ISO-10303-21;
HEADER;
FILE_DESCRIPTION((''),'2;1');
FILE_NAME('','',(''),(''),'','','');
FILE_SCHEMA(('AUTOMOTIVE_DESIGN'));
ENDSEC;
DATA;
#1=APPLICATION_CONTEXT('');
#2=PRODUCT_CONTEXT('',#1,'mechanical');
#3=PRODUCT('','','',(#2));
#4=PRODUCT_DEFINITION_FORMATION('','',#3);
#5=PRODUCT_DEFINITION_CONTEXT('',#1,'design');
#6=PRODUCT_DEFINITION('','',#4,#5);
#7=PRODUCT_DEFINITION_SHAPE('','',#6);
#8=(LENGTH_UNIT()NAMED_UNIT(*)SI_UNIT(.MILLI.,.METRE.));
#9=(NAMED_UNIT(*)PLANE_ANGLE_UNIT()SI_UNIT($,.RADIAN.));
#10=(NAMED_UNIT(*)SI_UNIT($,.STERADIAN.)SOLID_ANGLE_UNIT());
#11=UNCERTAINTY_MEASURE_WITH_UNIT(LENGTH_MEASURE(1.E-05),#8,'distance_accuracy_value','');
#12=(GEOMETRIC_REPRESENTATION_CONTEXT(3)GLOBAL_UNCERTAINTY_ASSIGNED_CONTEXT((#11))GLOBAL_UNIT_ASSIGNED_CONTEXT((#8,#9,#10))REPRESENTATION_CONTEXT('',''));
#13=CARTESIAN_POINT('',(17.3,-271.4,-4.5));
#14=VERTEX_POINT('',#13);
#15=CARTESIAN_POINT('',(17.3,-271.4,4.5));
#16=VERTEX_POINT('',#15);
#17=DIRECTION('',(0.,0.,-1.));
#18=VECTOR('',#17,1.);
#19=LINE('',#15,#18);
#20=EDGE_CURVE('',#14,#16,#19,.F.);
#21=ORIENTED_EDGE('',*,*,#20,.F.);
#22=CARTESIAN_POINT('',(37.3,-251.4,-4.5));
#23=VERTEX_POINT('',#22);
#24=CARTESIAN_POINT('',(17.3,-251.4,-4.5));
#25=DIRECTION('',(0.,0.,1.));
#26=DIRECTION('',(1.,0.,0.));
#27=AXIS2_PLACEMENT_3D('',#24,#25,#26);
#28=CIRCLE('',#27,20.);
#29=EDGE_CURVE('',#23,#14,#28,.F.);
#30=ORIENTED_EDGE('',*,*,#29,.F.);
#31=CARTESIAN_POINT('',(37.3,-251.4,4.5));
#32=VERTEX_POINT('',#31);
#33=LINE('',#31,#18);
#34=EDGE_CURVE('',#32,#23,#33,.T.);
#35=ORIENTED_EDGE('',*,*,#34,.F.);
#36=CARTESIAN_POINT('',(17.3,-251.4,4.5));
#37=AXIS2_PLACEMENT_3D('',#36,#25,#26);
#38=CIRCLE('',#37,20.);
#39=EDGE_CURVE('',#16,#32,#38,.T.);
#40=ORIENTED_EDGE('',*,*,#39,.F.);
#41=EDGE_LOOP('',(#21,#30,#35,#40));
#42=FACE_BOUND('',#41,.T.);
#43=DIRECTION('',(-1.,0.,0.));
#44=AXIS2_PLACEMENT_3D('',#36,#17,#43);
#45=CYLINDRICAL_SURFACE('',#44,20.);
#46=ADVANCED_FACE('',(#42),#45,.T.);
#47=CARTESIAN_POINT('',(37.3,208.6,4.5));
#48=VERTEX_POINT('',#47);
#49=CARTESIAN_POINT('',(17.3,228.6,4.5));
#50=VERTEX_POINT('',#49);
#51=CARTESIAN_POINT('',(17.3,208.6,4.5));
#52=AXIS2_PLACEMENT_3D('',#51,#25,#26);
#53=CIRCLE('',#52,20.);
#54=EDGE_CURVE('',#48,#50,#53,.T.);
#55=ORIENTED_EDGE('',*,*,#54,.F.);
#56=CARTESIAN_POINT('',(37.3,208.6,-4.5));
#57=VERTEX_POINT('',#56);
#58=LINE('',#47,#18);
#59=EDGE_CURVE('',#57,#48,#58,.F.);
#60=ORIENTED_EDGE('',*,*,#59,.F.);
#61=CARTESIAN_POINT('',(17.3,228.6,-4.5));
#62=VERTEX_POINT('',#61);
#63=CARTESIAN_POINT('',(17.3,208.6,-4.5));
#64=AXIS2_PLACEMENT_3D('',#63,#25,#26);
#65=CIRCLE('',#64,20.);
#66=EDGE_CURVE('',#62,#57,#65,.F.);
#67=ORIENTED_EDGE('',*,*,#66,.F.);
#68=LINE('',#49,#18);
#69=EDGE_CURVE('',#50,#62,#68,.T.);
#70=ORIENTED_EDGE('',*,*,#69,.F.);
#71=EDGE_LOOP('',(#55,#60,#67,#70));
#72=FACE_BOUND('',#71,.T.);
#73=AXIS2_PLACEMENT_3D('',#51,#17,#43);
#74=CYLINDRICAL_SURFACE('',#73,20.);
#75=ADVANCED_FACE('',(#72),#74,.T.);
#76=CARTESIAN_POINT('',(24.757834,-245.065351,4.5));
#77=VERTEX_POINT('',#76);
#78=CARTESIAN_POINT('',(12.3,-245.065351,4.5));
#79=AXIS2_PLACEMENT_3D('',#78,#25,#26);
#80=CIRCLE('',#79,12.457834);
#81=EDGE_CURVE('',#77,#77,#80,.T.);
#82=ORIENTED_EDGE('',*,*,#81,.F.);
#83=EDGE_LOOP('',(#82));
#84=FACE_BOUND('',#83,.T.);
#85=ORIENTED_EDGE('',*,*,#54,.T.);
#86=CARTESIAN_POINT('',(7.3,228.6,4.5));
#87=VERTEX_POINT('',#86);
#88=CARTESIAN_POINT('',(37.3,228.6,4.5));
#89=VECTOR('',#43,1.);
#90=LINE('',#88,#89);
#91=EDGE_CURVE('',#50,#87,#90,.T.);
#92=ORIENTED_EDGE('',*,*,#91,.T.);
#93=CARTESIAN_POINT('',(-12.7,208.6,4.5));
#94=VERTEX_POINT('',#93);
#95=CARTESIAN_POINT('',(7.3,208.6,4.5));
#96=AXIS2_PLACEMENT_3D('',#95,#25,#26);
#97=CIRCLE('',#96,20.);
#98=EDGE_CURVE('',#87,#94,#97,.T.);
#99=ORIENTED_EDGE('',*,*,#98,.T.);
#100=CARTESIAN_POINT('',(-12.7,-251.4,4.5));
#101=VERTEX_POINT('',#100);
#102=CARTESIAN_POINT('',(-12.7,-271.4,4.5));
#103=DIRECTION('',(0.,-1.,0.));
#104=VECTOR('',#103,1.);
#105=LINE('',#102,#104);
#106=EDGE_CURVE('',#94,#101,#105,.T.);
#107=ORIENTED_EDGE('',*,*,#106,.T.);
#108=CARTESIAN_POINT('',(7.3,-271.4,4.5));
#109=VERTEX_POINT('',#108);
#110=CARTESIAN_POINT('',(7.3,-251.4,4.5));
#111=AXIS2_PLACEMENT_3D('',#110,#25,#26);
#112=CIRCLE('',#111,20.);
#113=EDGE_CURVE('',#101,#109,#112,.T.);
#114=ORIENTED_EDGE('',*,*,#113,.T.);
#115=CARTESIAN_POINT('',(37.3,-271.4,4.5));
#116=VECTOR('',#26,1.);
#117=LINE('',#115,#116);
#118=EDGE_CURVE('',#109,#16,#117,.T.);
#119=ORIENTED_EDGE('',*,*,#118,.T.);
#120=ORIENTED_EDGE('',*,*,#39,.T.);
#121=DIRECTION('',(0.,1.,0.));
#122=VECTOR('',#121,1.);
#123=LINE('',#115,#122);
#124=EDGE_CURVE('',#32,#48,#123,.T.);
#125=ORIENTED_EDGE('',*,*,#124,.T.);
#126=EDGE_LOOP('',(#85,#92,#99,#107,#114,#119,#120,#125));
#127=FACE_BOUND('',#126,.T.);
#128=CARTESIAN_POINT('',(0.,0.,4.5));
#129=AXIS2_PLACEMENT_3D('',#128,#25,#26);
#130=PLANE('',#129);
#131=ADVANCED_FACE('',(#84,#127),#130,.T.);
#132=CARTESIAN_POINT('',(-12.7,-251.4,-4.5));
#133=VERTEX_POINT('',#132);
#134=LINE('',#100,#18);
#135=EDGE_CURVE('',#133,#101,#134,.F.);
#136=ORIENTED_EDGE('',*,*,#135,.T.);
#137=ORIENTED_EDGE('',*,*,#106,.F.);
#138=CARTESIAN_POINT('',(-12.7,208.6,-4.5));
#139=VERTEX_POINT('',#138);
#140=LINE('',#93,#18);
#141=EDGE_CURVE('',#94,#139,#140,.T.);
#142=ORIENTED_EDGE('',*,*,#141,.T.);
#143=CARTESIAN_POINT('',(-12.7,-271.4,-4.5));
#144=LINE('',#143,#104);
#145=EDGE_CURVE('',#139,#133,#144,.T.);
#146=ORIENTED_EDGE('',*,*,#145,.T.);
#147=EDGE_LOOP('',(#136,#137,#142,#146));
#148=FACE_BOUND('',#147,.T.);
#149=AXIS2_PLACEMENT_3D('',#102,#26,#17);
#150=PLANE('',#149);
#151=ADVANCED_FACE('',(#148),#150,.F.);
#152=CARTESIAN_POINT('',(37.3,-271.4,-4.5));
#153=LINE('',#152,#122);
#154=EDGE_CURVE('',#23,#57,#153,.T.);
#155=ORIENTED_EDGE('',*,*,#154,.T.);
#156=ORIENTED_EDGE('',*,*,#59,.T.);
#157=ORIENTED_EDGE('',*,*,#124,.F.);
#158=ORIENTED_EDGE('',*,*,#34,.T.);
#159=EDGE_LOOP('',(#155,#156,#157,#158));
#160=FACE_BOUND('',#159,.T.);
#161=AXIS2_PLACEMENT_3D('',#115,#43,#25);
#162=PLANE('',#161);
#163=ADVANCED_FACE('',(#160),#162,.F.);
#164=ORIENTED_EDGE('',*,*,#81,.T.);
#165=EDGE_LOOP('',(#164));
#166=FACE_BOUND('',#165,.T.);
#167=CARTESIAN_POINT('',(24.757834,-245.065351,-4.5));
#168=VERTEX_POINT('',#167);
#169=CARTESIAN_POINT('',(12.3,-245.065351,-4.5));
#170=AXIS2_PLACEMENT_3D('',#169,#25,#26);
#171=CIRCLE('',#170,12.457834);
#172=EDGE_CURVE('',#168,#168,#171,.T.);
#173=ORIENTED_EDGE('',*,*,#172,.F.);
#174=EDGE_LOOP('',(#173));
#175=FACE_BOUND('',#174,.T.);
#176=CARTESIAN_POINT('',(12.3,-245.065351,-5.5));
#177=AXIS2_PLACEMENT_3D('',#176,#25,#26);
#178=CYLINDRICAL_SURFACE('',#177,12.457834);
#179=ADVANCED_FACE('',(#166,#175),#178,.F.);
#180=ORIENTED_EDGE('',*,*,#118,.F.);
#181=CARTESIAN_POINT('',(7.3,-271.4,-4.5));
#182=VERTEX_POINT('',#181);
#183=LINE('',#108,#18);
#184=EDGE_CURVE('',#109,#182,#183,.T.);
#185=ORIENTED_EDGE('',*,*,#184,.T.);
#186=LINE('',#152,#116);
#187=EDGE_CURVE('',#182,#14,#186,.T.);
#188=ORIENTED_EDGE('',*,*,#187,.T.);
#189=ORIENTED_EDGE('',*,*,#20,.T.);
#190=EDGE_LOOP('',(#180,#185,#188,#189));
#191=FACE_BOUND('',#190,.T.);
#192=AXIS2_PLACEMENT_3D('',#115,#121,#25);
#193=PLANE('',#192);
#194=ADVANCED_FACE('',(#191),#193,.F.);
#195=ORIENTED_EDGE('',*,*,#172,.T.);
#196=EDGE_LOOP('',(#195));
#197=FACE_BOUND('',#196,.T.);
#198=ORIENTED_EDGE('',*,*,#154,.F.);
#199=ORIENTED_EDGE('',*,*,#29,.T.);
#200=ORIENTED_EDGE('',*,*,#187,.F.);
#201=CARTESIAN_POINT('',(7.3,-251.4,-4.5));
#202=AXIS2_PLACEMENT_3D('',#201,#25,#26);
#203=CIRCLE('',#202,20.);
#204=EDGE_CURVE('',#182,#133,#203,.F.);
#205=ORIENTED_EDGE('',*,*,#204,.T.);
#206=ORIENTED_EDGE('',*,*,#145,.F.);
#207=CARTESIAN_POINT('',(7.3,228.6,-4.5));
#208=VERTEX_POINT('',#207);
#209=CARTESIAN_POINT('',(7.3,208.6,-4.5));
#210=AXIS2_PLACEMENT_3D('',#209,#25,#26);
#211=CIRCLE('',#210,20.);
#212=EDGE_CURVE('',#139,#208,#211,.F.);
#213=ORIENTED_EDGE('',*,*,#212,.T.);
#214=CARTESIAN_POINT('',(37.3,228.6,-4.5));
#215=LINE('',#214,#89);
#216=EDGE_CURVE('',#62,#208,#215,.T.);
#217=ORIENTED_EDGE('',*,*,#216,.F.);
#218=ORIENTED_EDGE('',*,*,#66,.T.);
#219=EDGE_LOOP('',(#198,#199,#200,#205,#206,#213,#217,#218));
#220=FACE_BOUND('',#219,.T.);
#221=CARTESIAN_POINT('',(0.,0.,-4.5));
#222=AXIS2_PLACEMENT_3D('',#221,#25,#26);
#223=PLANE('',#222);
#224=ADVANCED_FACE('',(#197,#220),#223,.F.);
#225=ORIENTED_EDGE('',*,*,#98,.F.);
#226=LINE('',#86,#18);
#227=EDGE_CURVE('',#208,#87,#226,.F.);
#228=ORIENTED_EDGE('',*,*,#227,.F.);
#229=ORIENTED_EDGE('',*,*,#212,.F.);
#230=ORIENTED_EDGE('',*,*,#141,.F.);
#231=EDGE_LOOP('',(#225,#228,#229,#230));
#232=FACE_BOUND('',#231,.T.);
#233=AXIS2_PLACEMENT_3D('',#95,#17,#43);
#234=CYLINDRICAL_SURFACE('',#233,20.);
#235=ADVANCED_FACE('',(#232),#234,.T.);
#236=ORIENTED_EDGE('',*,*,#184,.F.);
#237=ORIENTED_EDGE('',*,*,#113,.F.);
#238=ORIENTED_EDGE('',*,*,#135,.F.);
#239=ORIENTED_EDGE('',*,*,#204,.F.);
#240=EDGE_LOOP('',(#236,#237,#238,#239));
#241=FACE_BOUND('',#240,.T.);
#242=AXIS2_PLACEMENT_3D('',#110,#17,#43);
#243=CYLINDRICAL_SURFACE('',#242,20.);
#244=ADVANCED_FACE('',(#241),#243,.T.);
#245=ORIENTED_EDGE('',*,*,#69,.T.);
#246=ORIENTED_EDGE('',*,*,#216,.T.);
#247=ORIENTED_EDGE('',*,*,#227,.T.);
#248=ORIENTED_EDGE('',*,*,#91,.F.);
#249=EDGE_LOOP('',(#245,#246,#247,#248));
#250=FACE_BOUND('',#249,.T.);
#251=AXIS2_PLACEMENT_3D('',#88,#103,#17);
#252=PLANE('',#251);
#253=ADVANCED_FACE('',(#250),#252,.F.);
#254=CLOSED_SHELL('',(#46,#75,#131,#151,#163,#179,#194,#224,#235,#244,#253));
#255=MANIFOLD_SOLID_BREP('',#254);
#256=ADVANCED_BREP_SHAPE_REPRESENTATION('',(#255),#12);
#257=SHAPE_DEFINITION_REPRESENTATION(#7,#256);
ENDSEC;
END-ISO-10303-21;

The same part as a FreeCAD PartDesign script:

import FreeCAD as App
import Part
import Sketcher

V = App.Vector
Q = App.Units.Quantity


def edges_at(feature, points):
    """Names of the edges that pass closest to the given points."""
    edges = feature.Shape.Edges
    near = lambda p: min(range(len(edges)), key=lambda i: edges[i].distToShape(Part.Vertex(*p))[0])
    return sorted({f"Edge{near(p) + 1}" for p in points})

doc = App.newDocument("Part")
params = doc.addObject("Spreadsheet::Sheet", "Params")
for row, (alias, value) in enumerate([
    ("sketch1_width", "50 mm"),
    ("sketch1_height", "500 mm"),
    ("pad1_length", "9 mm"),
    ("fillet_radius", "20 mm"),
    ("pocket1_length", "10 mm"),
], start=1):
    params.set(f"A{row}", alias)
    params.set(f"B{row}", "=" + value)
    params.setAlias(f"B{row}", alias)

body = doc.addObject("PartDesign::Body", "Body")

# Sketch on XY plane
sketch1 = body.newObject("Sketcher::SketchObject", "Sketch")
sketch1.AttachmentSupport = (doc.getObject("XY_Plane"), [""])
sketch1.MapMode = "FlatFace"
sketch1.addGeometry(Part.LineSegment(V(-13, 229, 0), V(-13, -271, 0)), False)
sketch1.addGeometry(Part.LineSegment(V(-13, -271, 0), V(37, -271, 0)), False)
sketch1.addGeometry(Part.LineSegment(V(37, -271, 0), V(37, 229, 0)), False)
sketch1.addGeometry(Part.LineSegment(V(37, 229, 0), V(-13, 229, 0)), False)
sketch1.addConstraint(Sketcher.Constraint("Coincident", 0, 2, 1, 1))
sketch1.addConstraint(Sketcher.Constraint("Coincident", 1, 2, 2, 1))
sketch1.addConstraint(Sketcher.Constraint("Coincident", 2, 2, 3, 1))
sketch1.addConstraint(Sketcher.Constraint("Coincident", 3, 2, 0, 1))
sketch1.addConstraint(Sketcher.Constraint("Vertical", 0))
sketch1.addConstraint(Sketcher.Constraint("Horizontal", 1))
sketch1.addConstraint(Sketcher.Constraint("Vertical", 2))
sketch1.addConstraint(Sketcher.Constraint("Horizontal", 3))
sketch1.addConstraint(Sketcher.Constraint("DistanceX", 1, 1, 1, 2, Q("50 mm")))
sketch1.addConstraint(Sketcher.Constraint("DistanceY", 0, 2, 0, 1, Q("500 mm")))
sketch1.addConstraint(Sketcher.Constraint("DistanceX", 0, 2, -1, 1, Q("12.7 mm")))
sketch1.addConstraint(Sketcher.Constraint("DistanceY", 0, 2, -1, 1, Q("271.4 mm")))
sketch1.setExpression("Constraints[8]", "Params.sketch1_width")
sketch1.setExpression("Constraints[9]", "Params.sketch1_height")
pad1 = body.newObject("PartDesign::Pad", "Pad")
pad1.Profile = sketch1
pad1.setExpression("Length", "Params.pad1_length")
pad1.Midplane = True
doc.recompute()

fillet = body.newObject("PartDesign::Fillet", "Fillet")
fillet.Base = (pad1, edges_at(pad1, [
    (-12.7, 228.6, 0),
    (37.3, 228.6, 0),
    (37.3, -271.4, 0),
    (-12.7, -271.4, 0),
]))
fillet.setExpression("Radius", "Params.fillet_radius")

# Sketch on XY plane
sketch2 = body.newObject("Sketcher::SketchObject", "Sketch001")
sketch2.AttachmentSupport = (doc.getObject("XY_Plane"), [""])
sketch2.MapMode = "FlatFace"
sketch2.AttachmentOffset = App.Placement(V(0, 0, 4.5), App.Rotation())
sketch2.addGeometry(Part.Circle(V(12, -245, 0), V(0, 0, 1), 12), False)
sketch2.addConstraint(Sketcher.Constraint("DistanceX", -1, 1, 0, 3, Q("12.3 mm")))
sketch2.addConstraint(Sketcher.Constraint("Diameter", 0, Q("24.915668 mm")))
sketch2.addConstraint(Sketcher.Constraint("DistanceY", 0, 3, -1, 1, Q("245.065351 mm")))
pocket1 = body.newObject("PartDesign::Pocket", "Pocket")
pocket1.Profile = sketch2
pocket1.setExpression("Length", "Params.pocket1_length")

doc.recompute()
